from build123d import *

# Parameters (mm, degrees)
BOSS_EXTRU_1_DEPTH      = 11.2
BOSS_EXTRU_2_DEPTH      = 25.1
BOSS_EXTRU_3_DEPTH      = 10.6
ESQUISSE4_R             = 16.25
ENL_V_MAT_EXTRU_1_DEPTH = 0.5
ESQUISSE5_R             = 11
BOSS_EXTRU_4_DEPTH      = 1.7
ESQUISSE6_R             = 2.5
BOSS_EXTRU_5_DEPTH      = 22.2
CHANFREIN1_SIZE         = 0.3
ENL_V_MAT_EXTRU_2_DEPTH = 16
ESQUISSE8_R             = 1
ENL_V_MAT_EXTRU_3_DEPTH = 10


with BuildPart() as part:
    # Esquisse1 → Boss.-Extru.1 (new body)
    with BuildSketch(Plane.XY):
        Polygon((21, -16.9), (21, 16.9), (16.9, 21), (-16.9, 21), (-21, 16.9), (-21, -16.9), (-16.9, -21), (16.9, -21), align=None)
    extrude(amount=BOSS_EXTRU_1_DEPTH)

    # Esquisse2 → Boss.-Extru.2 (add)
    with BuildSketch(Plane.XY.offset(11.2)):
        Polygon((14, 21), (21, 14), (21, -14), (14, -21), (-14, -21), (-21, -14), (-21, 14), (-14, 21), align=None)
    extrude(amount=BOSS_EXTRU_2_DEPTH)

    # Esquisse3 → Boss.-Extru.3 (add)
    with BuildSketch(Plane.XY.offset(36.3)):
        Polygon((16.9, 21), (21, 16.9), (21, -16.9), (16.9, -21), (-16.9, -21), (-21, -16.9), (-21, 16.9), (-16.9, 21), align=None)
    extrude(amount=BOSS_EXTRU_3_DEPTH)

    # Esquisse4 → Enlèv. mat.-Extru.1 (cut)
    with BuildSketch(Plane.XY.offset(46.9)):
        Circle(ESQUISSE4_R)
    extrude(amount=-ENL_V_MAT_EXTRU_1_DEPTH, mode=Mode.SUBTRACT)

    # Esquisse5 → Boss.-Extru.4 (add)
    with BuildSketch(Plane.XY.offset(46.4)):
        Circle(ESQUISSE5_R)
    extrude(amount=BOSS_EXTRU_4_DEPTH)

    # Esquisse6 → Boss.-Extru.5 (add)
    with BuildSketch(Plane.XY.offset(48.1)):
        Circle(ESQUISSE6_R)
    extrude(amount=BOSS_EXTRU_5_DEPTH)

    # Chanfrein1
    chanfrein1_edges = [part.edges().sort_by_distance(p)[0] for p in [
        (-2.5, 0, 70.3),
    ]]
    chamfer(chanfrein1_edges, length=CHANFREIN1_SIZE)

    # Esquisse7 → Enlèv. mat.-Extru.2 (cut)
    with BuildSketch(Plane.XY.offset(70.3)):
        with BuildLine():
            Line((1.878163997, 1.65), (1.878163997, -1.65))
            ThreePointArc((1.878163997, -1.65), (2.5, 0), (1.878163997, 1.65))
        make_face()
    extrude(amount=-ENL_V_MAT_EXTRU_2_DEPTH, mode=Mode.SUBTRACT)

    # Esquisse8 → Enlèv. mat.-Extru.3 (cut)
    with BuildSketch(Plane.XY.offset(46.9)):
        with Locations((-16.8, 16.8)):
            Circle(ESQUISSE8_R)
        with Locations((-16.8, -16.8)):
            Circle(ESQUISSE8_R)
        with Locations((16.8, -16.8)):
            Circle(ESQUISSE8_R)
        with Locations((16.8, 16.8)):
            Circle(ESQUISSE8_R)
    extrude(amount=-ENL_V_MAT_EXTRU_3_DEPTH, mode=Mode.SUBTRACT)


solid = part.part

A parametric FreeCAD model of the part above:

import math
import FreeCAD as App
import Part
import Sketcher

V = App.Vector
Q = App.Units.Quantity


def edges_at(feature, points):
    """Names of the edges that pass closest to the given points."""
    edges = feature.Shape.Edges
    near = lambda p: min(range(len(edges)), key=lambda i: edges[i].distToShape(Part.Vertex(*p))[0])
    return sorted({f"Edge{near(p) + 1}" for p in points})

doc = App.newDocument("Part")
params = doc.addObject("Spreadsheet::Sheet", "Params")
for row, (alias, value) in enumerate([
    ("sketch1_width", "33.8 mm"),
    ("pad1_length", "11.2 mm"),
    ("sketch2_width", "28 mm"),
    ("pad2_length", "25.1 mm"),
    ("sketch3_width", "33.8 mm"),
    ("pad3_length", "10.6 mm"),
    ("sketch4_diameter", "32.5 mm"),
    ("pocket1_length", "0.5 mm"),
    ("sketch5_diameter", "22 mm"),
    ("pad4_length", "1.7 mm"),
    ("sketch6_diameter", "5 mm"),
    ("pad5_length", "22.2 mm"),
    ("chamfer_size", "0.3 mm"),
    ("sketch7_radius", "2.5 mm"),
    ("sketch7_height", "3.3 mm"),
    ("pocket2_length", "16 mm"),
    ("sketch8_diameter", "2 mm"),
    ("pocket3_length", "10 mm"),
], start=1):
    params.set(f"A{row}", alias)
    params.set(f"B{row}", "=" + value)
    params.setAlias(f"B{row}", alias)

body = doc.addObject("PartDesign::Body", "Body")

# Sketch on XY plane
sketch1 = doc.addObject("Sketcher::SketchObject", "Sketch")
body.addObject(sketch1)
sketch1.AttachmentSupport = (doc.XY_Plane, [""])
sketch1.MapMode = "FlatFace"
sketch1.addGeometry([
    Part.LineSegment(V(21, -16.9, 0), V(21, 16.9, 0)),  # 0
    Part.LineSegment(V(21, 16.9, 0), V(16.9, 21, 0)),  # 1
    Part.LineSegment(V(16.9, 21, 0), V(-16.9, 21, 0)),  # 2
    Part.LineSegment(V(-16.9, 21, 0), V(-21, 16.9, 0)),  # 3
    Part.LineSegment(V(-21, 16.9, 0), V(-21, -16.9, 0)),  # 4
    Part.LineSegment(V(-21, -16.9, 0), V(-16.9, -21, 0)),  # 5
    Part.LineSegment(V(-16.9, -21, 0), V(16.9, -21, 0)),  # 6
    Part.LineSegment(V(16.9, -21, 0), V(21, -16.9, 0)),  # 7
], False)
sketch1.addConstraint([
    Sketcher.Constraint("Coincident", 0, 2, 1, 1),
    Sketcher.Constraint("Coincident", 1, 2, 2, 1),
    Sketcher.Constraint("Coincident", 2, 2, 3, 1),
    Sketcher.Constraint("Coincident", 3, 2, 4, 1),
    Sketcher.Constraint("Coincident", 4, 2, 5, 1),
    Sketcher.Constraint("Coincident", 5, 2, 6, 1),
    Sketcher.Constraint("Coincident", 6, 2, 7, 1),
    Sketcher.Constraint("Coincident", 7, 2, 0, 1),
    Sketcher.Constraint("Vertical", 0),
    Sketcher.Constraint("Horizontal", 2),
    Sketcher.Constraint("Vertical", 4),
    Sketcher.Constraint("Horizontal", 6),
    Sketcher.Constraint("Symmetric", 0, 2, 4, 2, -1, 1),
    Sketcher.Constraint("Symmetric", 1, 2, 5, 2, -1, 1),
    Sketcher.Constraint("Perpendicular", 1, 3),
    Sketcher.Constraint("Perpendicular", 5, 7),
    Sketcher.Constraint("Horizontal", 0, 2, 3, 2),
    Sketcher.Constraint("Horizontal", 4, 2, 7, 2),
    Sketcher.Constraint("Vertical", 2, 2, 5, 2),
    Sketcher.Constraint("Equal", 6, 0),
    Sketcher.Constraint("DistanceX", 2, 2, 2, 1, Q("33.8 mm")),
    Sketcher.Constraint("DistanceX", -1, 1, 0, 2, Q("21 mm")),
])
sketch1.setExpression("Constraints[20]", "Params.sketch1_width")
pad1 = doc.addObject("PartDesign::Pad", "Pad")
body.addObject(pad1)
pad1.Profile = sketch1
pad1.setExpression("Length", "Params.pad1_length")

# Sketch on XY plane
sketch2 = doc.addObject("Sketcher::SketchObject", "Sketch001")
body.addObject(sketch2)
sketch2.AttachmentSupport = (doc.XY_Plane, [""])
sketch2.MapMode = "FlatFace"
sketch2.AttachmentOffset = App.Placement(V(0, 0, 11.2), App.Rotation())
sketch2.addGeometry([
    Part.LineSegment(V(21, 14, 0), V(14, 21, 0)),  # 0
    Part.LineSegment(V(14, 21, 0), V(-14, 21, 0)),  # 1
    Part.LineSegment(V(-14, 21, 0), V(-21, 14, 0)),  # 2
    Part.LineSegment(V(-21, 14, 0), V(-21, -14, 0)),  # 3
    Part.LineSegment(V(-21, -14, 0), V(-14, -21, 0)),  # 4
    Part.LineSegment(V(-14, -21, 0), V(14, -21, 0)),  # 5
    Part.LineSegment(V(14, -21, 0), V(21, -14, 0)),  # 6
    Part.LineSegment(V(21, -14, 0), V(21, 14, 0)),  # 7
], False)
sketch2.addConstraint([
    Sketcher.Constraint("Coincident", 0, 2, 1, 1),
    Sketcher.Constraint("Coincident", 1, 2, 2, 1),
    Sketcher.Constraint("Coincident", 2, 2, 3, 1),
    Sketcher.Constraint("Coincident", 3, 2, 4, 1),
    Sketcher.Constraint("Coincident", 4, 2, 5, 1),
    Sketcher.Constraint("Coincident", 5, 2, 6, 1),
    Sketcher.Constraint("Coincident", 6, 2, 7, 1),
    Sketcher.Constraint("Coincident", 7, 2, 0, 1),
    Sketcher.Constraint("Horizontal", 1),
    Sketcher.Constraint("Vertical", 3),
    Sketcher.Constraint("Horizontal", 5),
    Sketcher.Constraint("Vertical", 7),
    Sketcher.Constraint("Symmetric", 0, 2, 4, 2, -1, 1),
    Sketcher.Constraint("Symmetric", 2, 2, 6, 2, -1, 1),
    Sketcher.Constraint("Perpendicular", 0, 2),
    Sketcher.Constraint("Perpendicular", 2, 4),
    Sketcher.Constraint("Perpendicular", 4, 6),
    Sketcher.Constraint("Horizontal", 3, 2, 6, 2),
    Sketcher.Constraint("Vertical", 1, 2, 4, 2),
    Sketcher.Constraint("Equal", 5, 3),
    Sketcher.Constraint("DistanceX", 1, 2, 1, 1, Q("28 mm")),
    Sketcher.Constraint("DistanceY", -1, 1, 0, 2, Q("21 mm")),
])
sketch2.setExpression("Constraints[20]", "Params.sketch2_width")
pad2 = doc.addObject("PartDesign::Pad", "Pad001")
body.addObject(pad2)
pad2.Profile = sketch2
pad2.setExpression("Length", "Params.pad2_length")

# Sketch on XY plane
sketch3 = doc.addObject("Sketcher::SketchObject", "Sketch002")
body.addObject(sketch3)
sketch3.AttachmentSupport = (doc.XY_Plane, [""])
sketch3.MapMode = "FlatFace"
sketch3.AttachmentOffset = App.Placement(V(0, 0, 36.3), App.Rotation())
sketch3.addGeometry([
    Part.LineSegment(V(21, 16.9, 0), V(16.9, 21, 0)),  # 0
    Part.LineSegment(V(16.9, 21, 0), V(-16.9, 21, 0)),  # 1
    Part.LineSegment(V(-16.9, 21, 0), V(-21, 16.9, 0)),  # 2
    Part.LineSegment(V(-21, 16.9, 0), V(-21, -16.9, 0)),  # 3
    Part.LineSegment(V(-21, -16.9, 0), V(-16.9, -21, 0)),  # 4
    Part.LineSegment(V(-16.9, -21, 0), V(16.9, -21, 0)),  # 5
    Part.LineSegment(V(16.9, -21, 0), V(21, -16.9, 0)),  # 6
    Part.LineSegment(V(21, -16.9, 0), V(21, 16.9, 0)),  # 7
], False)
sketch3.addConstraint([
    Sketcher.Constraint("Coincident", 0, 2, 1, 1),
    Sketcher.Constraint("Coincident", 1, 2, 2, 1),
    Sketcher.Constraint("Coincident", 2, 2, 3, 1),
    Sketcher.Constraint("Coincident", 3, 2, 4, 1),
    Sketcher.Constraint("Coincident", 4, 2, 5, 1),
    Sketcher.Constraint("Coincident", 5, 2, 6, 1),
    Sketcher.Constraint("Coincident", 6, 2, 7, 1),
    Sketcher.Constraint("Coincident", 7, 2, 0, 1),
    Sketcher.Constraint("Horizontal", 1),
    Sketcher.Constraint("Vertical", 3),
    Sketcher.Constraint("Horizontal", 5),
    Sketcher.Constraint("Vertical", 7),
    Sketcher.Constraint("Symmetric", 0, 2, 4, 2, -1, 1),
    Sketcher.Constraint("Symmetric", 2, 2, 6, 2, -1, 1),
    Sketcher.Constraint("Perpendicular", 0, 2),
    Sketcher.Constraint("Perpendicular", 2, 4),
    Sketcher.Constraint("Perpendicular", 4, 6),
    Sketcher.Constraint("Horizontal", 3, 2, 6, 2),
    Sketcher.Constraint("Vertical", 1, 2, 4, 2),
    Sketcher.Constraint("Equal", 5, 3),
    Sketcher.Constraint("DistanceX", 1, 2, 1, 1, Q("33.8 mm")),
    Sketcher.Constraint("DistanceY", -1, 1, 0, 2, Q("21 mm")),
])
sketch3.setExpression("Constraints[20]", "Params.sketch3_width")
pad3 = doc.addObject("PartDesign::Pad", "Pad002")
body.addObject(pad3)
pad3.Profile = sketch3
pad3.setExpression("Length", "Params.pad3_length")

# Sketch on XY plane
sketch4 = doc.addObject("Sketcher::SketchObject", "Sketch003")
body.addObject(sketch4)
sketch4.AttachmentSupport = (doc.XY_Plane, [""])
sketch4.MapMode = "FlatFace"
sketch4.AttachmentOffset = App.Placement(V(0, 0, 46.9), App.Rotation())
sketch4.addGeometry(Part.Circle(V(0, 0, 0), V(0, 0, 1), 16.25), False)
sketch4.addConstraint([
    Sketcher.Constraint("Coincident", 0, 3, -1, 1),
    Sketcher.Constraint("Diameter", 0, Q("32.5 mm")),
])
sketch4.setExpression("Constraints[1]", "Params.sketch4_diameter")
pocket1 = doc.addObject("PartDesign::Pocket", "Pocket")
body.addObject(pocket1)
pocket1.Profile = sketch4
pocket1.setExpression("Length", "Params.pocket1_length")

# Sketch on XY plane
sketch5 = doc.addObject("Sketcher::SketchObject", "Sketch004")
body.addObject(sketch5)
sketch5.AttachmentSupport = (doc.XY_Plane, [""])
sketch5.MapMode = "FlatFace"
sketch5.AttachmentOffset = App.Placement(V(0, 0, 46.4), App.Rotation())
sketch5.addGeometry(Part.Circle(V(0, 0, 0), V(0, 0, 1), 11), False)
sketch5.addConstraint([
    Sketcher.Constraint("Coincident", 0, 3, -1, 1),
    Sketcher.Constraint("Diameter", 0, Q("22 mm")),
])
sketch5.setExpression("Constraints[1]", "Params.sketch5_diameter")
pad4 = doc.addObject("PartDesign::Pad", "Pad003")
body.addObject(pad4)
pad4.Profile = sketch5
pad4.setExpression("Length", "Params.pad4_length")

# Sketch on XY plane
sketch6 = doc.addObject("Sketcher::SketchObject", "Sketch005")
body.addObject(sketch6)
sketch6.AttachmentSupport = (doc.XY_Plane, [""])
sketch6.MapMode = "FlatFace"
sketch6.AttachmentOffset = App.Placement(V(0, 0, 48.1), App.Rotation())
sketch6.addGeometry(Part.Circle(V(0, 0, 0), V(0, 0, 1), 2.5), False)
sketch6.addConstraint([
    Sketcher.Constraint("Coincident", 0, 3, -1, 1),
    Sketcher.Constraint("Diameter", 0, Q("5 mm")),
])
sketch6.setExpression("Constraints[1]", "Params.sketch6_diameter")
pad5 = doc.addObject("PartDesign::Pad", "Pad004")
body.addObject(pad5)
pad5.Profile = sketch6
pad5.setExpression("Length", "Params.pad5_length")
doc.recompute()

chamfer = doc.addObject("PartDesign::Chamfer", "Chamfer")
body.addObject(chamfer)
chamfer.Base = (pad5, edges_at(pad5, [(-2.5, 0, 70.3)]))
chamfer.setExpression("Size", "Params.chamfer_size")

# Sketch on XY plane
sketch7 = doc.addObject("Sketcher::SketchObject", "Sketch006")
body.addObject(sketch7)
sketch7.AttachmentSupport = (doc.XY_Plane, [""])
sketch7.MapMode = "FlatFace"
sketch7.AttachmentOffset = App.Placement(V(0, 0, 70.3), App.Rotation())
sketch7.addGeometry([
    Part.LineSegment(V(1.878164, 1.65, 0), V(1.878164, -1.65, 0)),
    Part.ArcOfCircle(Part.Circle(V(0, 0, 0), V(0, 0, 1), 2.5), math.radians(-41.299873), math.radians(41.299873)),
], False)
sketch7.addConstraint([
    Sketcher.Constraint("Coincident", 0, 1, 1, 2),
    Sketcher.Constraint("Coincident", 1, 1, 0, 2),
    Sketcher.Constraint("Vertical", 0),
    Sketcher.Constraint("Coincident", 1, 3, -1, 1),
    Sketcher.Constraint("Radius", 1, Q("2.5 mm")),
    Sketcher.Constraint("DistanceY", 0, 2, 0, 1, Q("3.3 mm")),
])
sketch7.setExpression("Constraints[4]", "Params.sketch7_radius")
sketch7.setExpression("Constraints[5]", "Params.sketch7_height")
pocket2 = doc.addObject("PartDesign::Pocket", "Pocket001")
body.addObject(pocket2)
pocket2.Profile = sketch7
pocket2.setExpression("Length", "Params.pocket2_length")

# Sketch on XY plane
sketch8 = doc.addObject("Sketcher::SketchObject", "Sketch007")
body.addObject(sketch8)
sketch8.AttachmentSupport = (doc.XY_Plane, [""])
sketch8.MapMode = "FlatFace"
sketch8.AttachmentOffset = App.Placement(V(0, 0, 46.9), App.Rotation())
sketch8.addGeometry([
    Part.Circle(V(-16.8, 16.8, 0), V(0, 0, 1), 1),
    Part.Circle(V(-16.8, -16.8, 0), V(0, 0, 1), 1),
    Part.Circle(V(16.8, -16.8, 0), V(0, 0, 1), 1),
    Part.Circle(V(16.8, 16.8, 0), V(0, 0, 1), 1),
], False)
sketch8.addConstraint([
    Sketcher.Constraint("Equal", 0, 1),
    Sketcher.Constraint("Equal", 1, 2),
    Sketcher.Constraint("Equal", 2, 3),
    Sketcher.Constraint("Symmetric", 0, 3, 2, 3, -1, 1),
    Sketcher.Constraint("Symmetric", 1, 3, 3, 3, -1, 1),
    Sketcher.Constraint("Symmetric", 1, 3, 2, 3, -2),
    Sketcher.Constraint("Diameter", 0, Q("2 mm")),
    Sketcher.Constraint("DistanceX", 0, 3, -1, 1, Q("16.8 mm")),
    Sketcher.Constraint("DistanceY", -1, 1, 0, 3, Q("16.8 mm")),
])
sketch8.setExpression("Constraints[6]", "Params.sketch8_diameter")
pocket3 = doc.addObject("PartDesign::Pocket", "Pocket002")
body.addObject(pocket3)
pocket3.Profile = sketch8
pocket3.setExpression("Length", "Params.pocket3_length")

doc.recompute()
